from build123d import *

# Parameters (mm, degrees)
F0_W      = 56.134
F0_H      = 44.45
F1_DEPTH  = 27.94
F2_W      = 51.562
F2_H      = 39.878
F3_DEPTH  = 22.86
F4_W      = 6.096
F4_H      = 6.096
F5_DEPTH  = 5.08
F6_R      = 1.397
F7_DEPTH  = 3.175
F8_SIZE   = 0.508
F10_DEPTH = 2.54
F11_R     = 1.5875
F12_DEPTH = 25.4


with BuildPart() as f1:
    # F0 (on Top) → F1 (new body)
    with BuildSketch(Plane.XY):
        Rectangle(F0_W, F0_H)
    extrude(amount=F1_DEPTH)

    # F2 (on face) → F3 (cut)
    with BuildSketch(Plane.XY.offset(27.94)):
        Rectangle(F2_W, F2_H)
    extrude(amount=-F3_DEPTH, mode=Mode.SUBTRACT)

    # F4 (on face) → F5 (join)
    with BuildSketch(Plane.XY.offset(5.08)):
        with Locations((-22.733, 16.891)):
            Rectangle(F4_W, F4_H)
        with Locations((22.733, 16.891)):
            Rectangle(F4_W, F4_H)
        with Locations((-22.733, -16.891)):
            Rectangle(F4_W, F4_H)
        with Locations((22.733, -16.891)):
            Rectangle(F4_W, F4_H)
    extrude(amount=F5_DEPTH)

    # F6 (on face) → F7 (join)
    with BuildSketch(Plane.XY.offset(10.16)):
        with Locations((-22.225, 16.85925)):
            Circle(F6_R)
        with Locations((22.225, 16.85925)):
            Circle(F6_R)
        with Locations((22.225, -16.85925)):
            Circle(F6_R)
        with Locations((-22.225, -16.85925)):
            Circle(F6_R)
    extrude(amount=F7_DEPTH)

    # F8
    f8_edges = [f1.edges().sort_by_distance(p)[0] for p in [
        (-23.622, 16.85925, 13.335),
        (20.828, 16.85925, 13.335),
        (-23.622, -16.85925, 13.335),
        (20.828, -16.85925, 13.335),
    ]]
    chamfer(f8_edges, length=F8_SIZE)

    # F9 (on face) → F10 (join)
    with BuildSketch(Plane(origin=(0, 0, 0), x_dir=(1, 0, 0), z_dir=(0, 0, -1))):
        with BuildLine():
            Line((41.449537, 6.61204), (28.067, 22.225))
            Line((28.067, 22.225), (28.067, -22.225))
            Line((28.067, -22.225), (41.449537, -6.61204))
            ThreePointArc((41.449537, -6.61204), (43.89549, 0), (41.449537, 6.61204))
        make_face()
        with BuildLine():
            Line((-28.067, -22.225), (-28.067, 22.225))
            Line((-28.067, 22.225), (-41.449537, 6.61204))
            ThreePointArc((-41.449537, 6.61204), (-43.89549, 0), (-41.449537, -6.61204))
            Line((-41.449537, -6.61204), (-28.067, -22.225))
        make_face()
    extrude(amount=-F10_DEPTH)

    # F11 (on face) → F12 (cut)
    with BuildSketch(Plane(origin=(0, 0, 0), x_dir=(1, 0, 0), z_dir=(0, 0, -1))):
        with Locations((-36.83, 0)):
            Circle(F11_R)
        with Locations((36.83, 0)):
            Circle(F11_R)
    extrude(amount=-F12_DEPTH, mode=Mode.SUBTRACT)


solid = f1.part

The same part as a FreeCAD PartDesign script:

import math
import FreeCAD as App
import Part
import Sketcher
from FreeCAD import Vector
Q = App.Units.Quantity


def edges_at(feature, points):
    """Names of the edges that pass closest to the given points."""
    edges = feature.Shape.Edges
    near = lambda p: min(range(len(edges)), key=lambda i: edges[i].distToShape(Part.Vertex(*p))[0])
    return sorted({f"Edge{near(p) + 1}" for p in points})

doc = App.newDocument("Part")
body = doc.addObject("PartDesign::Body", "Body")

sketch1 = body.newObject("Sketcher::SketchObject", "Sketch")
sketch1.AttachmentSupport = (doc.getObject("XY_Plane"), [""])
sketch1.MapMode = "FlatFace"
sketch1.addGeometry(Part.LineSegment(Vector(-28, 22, 0), Vector(-28, -22, 0)), False)
sketch1.addGeometry(Part.LineSegment(Vector(-28, -22, 0), Vector(28, -22, 0)), False)
sketch1.addGeometry(Part.LineSegment(Vector(28, -22, 0), Vector(28, 22, 0)), False)
sketch1.addGeometry(Part.LineSegment(Vector(28, 22, 0), Vector(-28, 22, 0)), False)
sketch1.addConstraint(Sketcher.Constraint("Coincident", 0, 2, 1, 1))
sketch1.addConstraint(Sketcher.Constraint("Coincident", 1, 2, 2, 1))
sketch1.addConstraint(Sketcher.Constraint("Coincident", 2, 2, 3, 1))
sketch1.addConstraint(Sketcher.Constraint("Coincident", 3, 2, 0, 1))
sketch1.addConstraint(Sketcher.Constraint("Vertical", 0))
sketch1.addConstraint(Sketcher.Constraint("Horizontal", 1))
sketch1.addConstraint(Sketcher.Constraint("Vertical", 2))
sketch1.addConstraint(Sketcher.Constraint("Horizontal", 3))
sketch1.addConstraint(Sketcher.Constraint("Symmetric", 0, 2, 2, 2, -1, 1))
sketch1.addConstraint(Sketcher.Constraint("DistanceX", 1, 1, 1, 2, Q("2.21 in")))
sketch1.addConstraint(Sketcher.Constraint("DistanceY", 0, 2, 0, 1, Q("1.75 in")))
pad1 = body.newObject("PartDesign::Pad", "Pad")
pad1.Profile = sketch1
pad1.Length = Q("1.1 in")

sketch2 = body.newObject("Sketcher::SketchObject", "Sketch001")
sketch2.AttachmentSupport = (doc.getObject("XY_Plane"), [""])
sketch2.MapMode = "FlatFace"
sketch2.AttachmentOffset = App.Placement(Vector(0, 0, 1.1 * 25.4), App.Rotation())
sketch2.addGeometry(Part.LineSegment(Vector(-26, 20, 0), Vector(-26, -20, 0)), False)
sketch2.addGeometry(Part.LineSegment(Vector(-26, -20, 0), Vector(26, -20, 0)), False)
sketch2.addGeometry(Part.LineSegment(Vector(26, -20, 0), Vector(26, 20, 0)), False)
sketch2.addGeometry(Part.LineSegment(Vector(26, 20, 0), Vector(-26, 20, 0)), False)
sketch2.addConstraint(Sketcher.Constraint("Coincident", 0, 2, 1, 1))
sketch2.addConstraint(Sketcher.Constraint("Coincident", 1, 2, 2, 1))
sketch2.addConstraint(Sketcher.Constraint("Coincident", 2, 2, 3, 1))
sketch2.addConstraint(Sketcher.Constraint("Coincident", 3, 2, 0, 1))
sketch2.addConstraint(Sketcher.Constraint("Vertical", 0))
sketch2.addConstraint(Sketcher.Constraint("Horizontal", 1))
sketch2.addConstraint(Sketcher.Constraint("Vertical", 2))
sketch2.addConstraint(Sketcher.Constraint("Horizontal", 3))
sketch2.addConstraint(Sketcher.Constraint("Symmetric", 0, 2, 2, 2, -1, 1))
sketch2.addConstraint(Sketcher.Constraint("DistanceX", 1, 1, 1, 2, Q("2.03 in")))
sketch2.addConstraint(Sketcher.Constraint("DistanceY", 0, 2, 0, 1, Q("1.57 in")))
pocket1 = body.newObject("PartDesign::Pocket", "Pocket")
pocket1.Profile = sketch2
pocket1.Length = Q("0.9 in")

sketch3 = body.newObject("Sketcher::SketchObject", "Sketch002")
sketch3.AttachmentSupport = (doc.getObject("XY_Plane"), [""])
sketch3.MapMode = "FlatFace"
sketch3.AttachmentOffset = App.Placement(Vector(0, 0, 0.2 * 25.4), App.Rotation())
sketch3.addGeometry(Part.LineSegment(Vector(-26, 20, 0), Vector(-26, 14, 0)), False)
sketch3.addGeometry(Part.LineSegment(Vector(-26, 14, 0), Vector(-20, 14, 0)), False)
sketch3.addGeometry(Part.LineSegment(Vector(-20, 14, 0), Vector(-20, 20, 0)), False)
sketch3.addGeometry(Part.LineSegment(Vector(-20, 20, 0), Vector(-26, 20, 0)), False)
sketch3.addGeometry(Part.LineSegment(Vector(20, 20, 0), Vector(20, 14, 0)), False)
sketch3.addGeometry(Part.LineSegment(Vector(20, 14, 0), Vector(26, 14, 0)), False)
sketch3.addGeometry(Part.LineSegment(Vector(26, 14, 0), Vector(26, 20, 0)), False)
sketch3.addGeometry(Part.LineSegment(Vector(26, 20, 0), Vector(20, 20, 0)), False)
sketch3.addGeometry(Part.LineSegment(Vector(-26, -14, 0), Vector(-26, -20, 0)), False)
sketch3.addGeometry(Part.LineSegment(Vector(-26, -20, 0), Vector(-20, -20, 0)), False)
sketch3.addGeometry(Part.LineSegment(Vector(-20, -20, 0), Vector(-20, -14, 0)), False)
sketch3.addGeometry(Part.LineSegment(Vector(-20, -14, 0), Vector(-26, -14, 0)), False)
sketch3.addGeometry(Part.LineSegment(Vector(20, -14, 0), Vector(20, -20, 0)), False)
sketch3.addGeometry(Part.LineSegment(Vector(20, -20, 0), Vector(26, -20, 0)), False)
sketch3.addGeometry(Part.LineSegment(Vector(26, -20, 0), Vector(26, -14, 0)), False)
sketch3.addGeometry(Part.LineSegment(Vector(26, -14, 0), Vector(20, -14, 0)), False)
sketch3.addConstraint(Sketcher.Constraint("Coincident", 0, 2, 1, 1))
sketch3.addConstraint(Sketcher.Constraint("Coincident", 1, 2, 2, 1))
sketch3.addConstraint(Sketcher.Constraint("Coincident", 2, 2, 3, 1))
sketch3.addConstraint(Sketcher.Constraint("Coincident", 3, 2, 0, 1))
sketch3.addConstraint(Sketcher.Constraint("Coincident", 4, 2, 5, 1))
sketch3.addConstraint(Sketcher.Constraint("Coincident", 5, 2, 6, 1))
sketch3.addConstraint(Sketcher.Constraint("Coincident", 6, 2, 7, 1))
sketch3.addConstraint(Sketcher.Constraint("Coincident", 7, 2, 4, 1))
sketch3.addConstraint(Sketcher.Constraint("Coincident", 8, 2, 9, 1))
sketch3.addConstraint(Sketcher.Constraint("Coincident", 9, 2, 10, 1))
sketch3.addConstraint(Sketcher.Constraint("Coincident", 10, 2, 11, 1))
sketch3.addConstraint(Sketcher.Constraint("Coincident", 11, 2, 8, 1))
sketch3.addConstraint(Sketcher.Constraint("Coincident", 12, 2, 13, 1))
sketch3.addConstraint(Sketcher.Constraint("Coincident", 13, 2, 14, 1))
sketch3.addConstraint(Sketcher.Constraint("Coincident", 14, 2, 15, 1))
sketch3.addConstraint(Sketcher.Constraint("Coincident", 15, 2, 12, 1))
sketch3.addConstraint(Sketcher.Constraint("Vertical", 0))
sketch3.addConstraint(Sketcher.Constraint("Horizontal", 1))
sketch3.addConstraint(Sketcher.Constraint("Vertical", 2))
sketch3.addConstraint(Sketcher.Constraint("Horizontal", 3))
sketch3.addConstraint(Sketcher.Constraint("Vertical", 4))
sketch3.addConstraint(Sketcher.Constraint("Horizontal", 5))
sketch3.addConstraint(Sketcher.Constraint("Vertical", 6))
sketch3.addConstraint(Sketcher.Constraint("Horizontal", 7))
sketch3.addConstraint(Sketcher.Constraint("Vertical", 8))
sketch3.addConstraint(Sketcher.Constraint("Horizontal", 9))
sketch3.addConstraint(Sketcher.Constraint("Vertical", 10))
sketch3.addConstraint(Sketcher.Constraint("Horizontal", 11))
sketch3.addConstraint(Sketcher.Constraint("Vertical", 12))
sketch3.addConstraint(Sketcher.Constraint("Horizontal", 13))
sketch3.addConstraint(Sketcher.Constraint("Vertical", 14))
sketch3.addConstraint(Sketcher.Constraint("Horizontal", 15))
sketch3.addConstraint(Sketcher.Constraint("Symmetric", 6, 2, 8, 2, -1, 1))
sketch3.addConstraint(Sketcher.Constraint("Symmetric", 4, 2, 10, 2, -1, 1))
sketch3.addConstraint(Sketcher.Constraint("Symmetric", 2, 2, 12, 2, -1, 1))
sketch3.addConstraint(Sketcher.Constraint("Symmetric", 0, 2, 14, 2, -1, 1))
sketch3.addConstraint(Sketcher.Constraint("Symmetric", 1, 2, 4, 2, -2))
sketch3.addConstraint(Sketcher.Constraint("Symmetric", 3, 2, 6, 2, -2))
sketch3.addConstraint(Sketcher.Constraint("Equal", 15, 0))
sketch3.addConstraint(Sketcher.Constraint("DistanceX", 1, 1, 1, 2, Q("0.24 in")))
sketch3.addConstraint(Sketcher.Constraint("DistanceX", 1, 2, 4, 2, Q("1.55 in")))
sketch3.addConstraint(Sketcher.Constraint("DistanceY", 8, 2, 0, 2, Q("1.33 in")))
pad2 = body.newObject("PartDesign::Pad", "Pad001")
pad2.Profile = sketch3
pad2.Length = Q("0.2 in")

sketch4 = body.newObject("Sketcher::SketchObject", "Sketch003")
sketch4.AttachmentSupport = (doc.getObject("XY_Plane"), [""])
sketch4.MapMode = "FlatFace"
sketch4.AttachmentOffset = App.Placement(Vector(0, 0, 0.4 * 25.4), App.Rotation())
sketch4.addGeometry(Part.Circle(Vector(-22.2, 16.9, 0), Vector(0, 0, 1), 1.4), False)
sketch4.addGeometry(Part.Circle(Vector(22.2, 16.9, 0), Vector(0, 0, 1), 1.4), False)
sketch4.addGeometry(Part.Circle(Vector(22.2, -16.9, 0), Vector(0, 0, 1), 1.4), False)
sketch4.addGeometry(Part.Circle(Vector(-22.2, -16.9, 0), Vector(0, 0, 1), 1.4), False)
sketch4.addConstraint(Sketcher.Constraint("Equal", 0, 1))
sketch4.addConstraint(Sketcher.Constraint("Equal", 1, 2))
sketch4.addConstraint(Sketcher.Constraint("Equal", 2, 3))
sketch4.addConstraint(Sketcher.Constraint("Symmetric", 0, 3, 2, 3, -1, 1))
sketch4.addConstraint(Sketcher.Constraint("Symmetric", 1, 3, 3, 3, -1, 1))
sketch4.addConstraint(Sketcher.Constraint("Symmetric", 0, 3, 1, 3, -2))
sketch4.addConstraint(Sketcher.Constraint("Diameter", 0, Q("0.11 in")))
sketch4.addConstraint(Sketcher.Constraint("DistanceX", 0, 3, 1, 3, Q("1.75 in")))
sketch4.addConstraint(Sketcher.Constraint("DistanceY", 2, 3, 1, 3, Q("1.3275 in")))
pad3 = body.newObject("PartDesign::Pad", "Pad002")
pad3.Profile = sketch4
pad3.Length = Q("0.125 in")
doc.recompute()

chamfer = body.newObject("PartDesign::Chamfer", "Chamfer")
chamfer.Base = (pad3, edges_at(pad3, [
    (-23.622, 16.859, 13.335),
    (20.828, 16.859, 13.335),
    (-23.622, -16.859, 13.335),
    (20.828, -16.859, 13.335),
]))
chamfer.Size = Q("0.02 in")

sketch5 = body.newObject("Sketcher::SketchObject", "Sketch004")
sketch5.AttachmentSupport = (doc.getObject("XY_Plane"), [""])
sketch5.MapMode = "FlatFace"
sketch5.addGeometry(Part.LineSegment(Vector(41, -7, 0), Vector(28, -22, 0)), False)
sketch5.addGeometry(Part.LineSegment(Vector(28, -22, 0), Vector(28, 22, 0)), False)
sketch5.addGeometry(Part.LineSegment(Vector(28, 22, 0), Vector(41, 7, 0)), False)
sketch5.addGeometry(Part.ArcOfCircle(Part.Circle(Vector(34, 0, 0), Vector(0, 0, 1), 10), math.radians(-41), math.radians(41)), False)
sketch5.addGeometry(Part.LineSegment(Vector(-28, 22, 0), Vector(-28, -22, 0)), False)
sketch5.addGeometry(Part.LineSegment(Vector(-28, -22, 0), Vector(-41, -7, 0)), False)
sketch5.addGeometry(Part.ArcOfCircle(Part.Circle(Vector(-34, 0, 0), Vector(0, 0, 1), 10), math.radians(139), math.radians(221)), False)
sketch5.addGeometry(Part.LineSegment(Vector(-41, 7, 0), Vector(-28, 22, 0)), False)
sketch5.addConstraint(Sketcher.Constraint("Coincident", 0, 2, 1, 1))
sketch5.addConstraint(Sketcher.Constraint("Coincident", 1, 2, 2, 1))
sketch5.addConstraint(Sketcher.Constraint("Tangent", 2, 2, 3, 2))
sketch5.addConstraint(Sketcher.Constraint("Tangent", 3, 1, 0, 1))
sketch5.addConstraint(Sketcher.Constraint("Coincident", 4, 2, 5, 1))
sketch5.addConstraint(Sketcher.Constraint("Tangent", 5, 2, 6, 2))
sketch5.addConstraint(Sketcher.Constraint("Tangent", 6, 1, 7, 1))
sketch5.addConstraint(Sketcher.Constraint("Coincident", 7, 2, 4, 1))
sketch5.addConstraint(Sketcher.Constraint("Vertical", 1))
sketch5.addConstraint(Sketcher.Constraint("Vertical", 4))
sketch5.addConstraint(Sketcher.Constraint("Equal", 3, 6))
sketch5.addConstraint(Sketcher.Constraint("Symmetric", 3, 3, 6, 3, -1, 1))
sketch5.addConstraint(Sketcher.Constraint("Symmetric", 1, 2, 4, 2, -1, 1))
sketch5.addConstraint(Sketcher.Constraint("Symmetric", 3, 1, 5, 2, -2))
sketch5.addConstraint(Sketcher.Constraint("Parallel", 0, 7))
sketch5.addConstraint(Sketcher.Constraint("Radius", 3, Q("0.4 in")))
sketch5.addConstraint(Sketcher.Constraint("DistanceY", 1, 1, 1, 2, Q("1.75 in")))
sketch5.addConstraint(Sketcher.Constraint("DistanceX", 4, 2, 0, 2, Q("2.21 in")))
sketch5.addConstraint(Sketcher.Constraint("DistanceX", -1, 1, 3, 3, 33.735491))
pad4 = body.newObject("PartDesign::Pad", "Pad003")
pad4.Profile = sketch5
pad4.Length = Q("0.1 in")

sketch6 = body.newObject("Sketcher::SketchObject", "Sketch005")
sketch6.AttachmentSupport = (doc.getObject("XY_Plane"), [""])
sketch6.MapMode = "FlatFace"
sketch6.addGeometry(Part.Circle(Vector(-36.8, 0, 0), Vector(0, 0, 1), 1.6), False)
sketch6.addGeometry(Part.Circle(Vector(36.8, 0, 0), Vector(0, 0, 1), 1.6), False)
sketch6.addConstraint(Sketcher.Constraint("Equal", 0, 1))
sketch6.addConstraint(Sketcher.Constraint("Symmetric", 0, 3, 1, 3, -1, 1))
sketch6.addConstraint(Sketcher.Constraint("PointOnObject", 0, 3, -1))
sketch6.addConstraint(Sketcher.Constraint("Diameter", 0, Q("0.125 in")))
sketch6.addConstraint(Sketcher.Constraint("DistanceX", 0, 3, 1, 3, Q("2.9 in")))
pocket2 = body.newObject("PartDesign::Pocket", "Pocket001")
pocket2.Profile = sketch6
pocket2.Length = Q("1 in")
pocket2.Reversed = True

doc.recompute()
